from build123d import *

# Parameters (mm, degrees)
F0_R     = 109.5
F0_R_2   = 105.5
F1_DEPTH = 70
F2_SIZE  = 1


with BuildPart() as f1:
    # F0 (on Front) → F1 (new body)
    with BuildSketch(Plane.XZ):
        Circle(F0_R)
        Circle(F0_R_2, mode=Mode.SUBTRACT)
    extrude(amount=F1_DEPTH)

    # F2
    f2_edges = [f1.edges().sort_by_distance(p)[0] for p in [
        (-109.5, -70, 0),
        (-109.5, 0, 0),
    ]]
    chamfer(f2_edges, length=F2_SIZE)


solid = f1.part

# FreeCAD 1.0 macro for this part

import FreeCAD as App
import Part
import Sketcher

V = App.Vector
Q = App.Units.Quantity


def edges_at(feature, points):
    """Names of the edges that pass closest to the given points."""
    edges = feature.Shape.Edges
    near = lambda p: min(range(len(edges)), key=lambda i: edges[i].distToShape(Part.Vertex(*p))[0])
    return sorted({f"Edge{near(p) + 1}" for p in points})

doc = App.newDocument("Part")
params = doc.addObject("Spreadsheet::Sheet", "Params")
for row, (alias, value) in enumerate([
    ("sketch1_diameter", "219 mm"),
    ("sketch1_diameter2", "211 mm"),
    ("pad1_length", "70 mm"),
    ("chamfer_size", "1 mm"),
], start=1):
    params.set(f"A{row}", alias)
    params.set(f"B{row}", "=" + value)
    params.setAlias(f"B{row}", alias)

body = doc.addObject("PartDesign::Body", "Body")

# Sketch on XZ plane
sketch1 = doc.addObject("Sketcher::SketchObject", "Sketch")
body.addObject(sketch1)
sketch1.AttachmentSupport = (doc.XZ_Plane, [""])
sketch1.MapMode = "FlatFace"
sketch1.addGeometry(Part.Circle(V(0, 0, 0), V(0, 0, 1), 110), False)
sketch1.addGeometry(Part.Circle(V(0, 0, 0), V(0, 0, 1), 106), False)
sketch1.addConstraint(Sketcher.Constraint("Coincident", 0, 3, -1, 1))
sketch1.addConstraint(Sketcher.Constraint("Coincident", 1, 3, -1, 1))
sketch1.addConstraint(Sketcher.Constraint("Diameter", 0, Q("219 mm")))
sketch1.addConstraint(Sketcher.Constraint("Diameter", 1, Q("211 mm")))
sketch1.setExpression("Constraints[2]", "Params.sketch1_diameter")
sketch1.setExpression("Constraints[3]", "Params.sketch1_diameter2")
pad1 = doc.addObject("PartDesign::Pad", "Pad")
body.addObject(pad1)
pad1.Profile = sketch1
pad1.setExpression("Length", "Params.pad1_length")
doc.recompute()

chamfer = doc.addObject("PartDesign::Chamfer", "Chamfer")
body.addObject(chamfer)
chamfer.Base = (pad1, edges_at(pad1, [(-109.5, -70, 0), (-109.5, 0, 0)]))
chamfer.setExpression("Size", "Params.chamfer_size")

doc.recompute()
